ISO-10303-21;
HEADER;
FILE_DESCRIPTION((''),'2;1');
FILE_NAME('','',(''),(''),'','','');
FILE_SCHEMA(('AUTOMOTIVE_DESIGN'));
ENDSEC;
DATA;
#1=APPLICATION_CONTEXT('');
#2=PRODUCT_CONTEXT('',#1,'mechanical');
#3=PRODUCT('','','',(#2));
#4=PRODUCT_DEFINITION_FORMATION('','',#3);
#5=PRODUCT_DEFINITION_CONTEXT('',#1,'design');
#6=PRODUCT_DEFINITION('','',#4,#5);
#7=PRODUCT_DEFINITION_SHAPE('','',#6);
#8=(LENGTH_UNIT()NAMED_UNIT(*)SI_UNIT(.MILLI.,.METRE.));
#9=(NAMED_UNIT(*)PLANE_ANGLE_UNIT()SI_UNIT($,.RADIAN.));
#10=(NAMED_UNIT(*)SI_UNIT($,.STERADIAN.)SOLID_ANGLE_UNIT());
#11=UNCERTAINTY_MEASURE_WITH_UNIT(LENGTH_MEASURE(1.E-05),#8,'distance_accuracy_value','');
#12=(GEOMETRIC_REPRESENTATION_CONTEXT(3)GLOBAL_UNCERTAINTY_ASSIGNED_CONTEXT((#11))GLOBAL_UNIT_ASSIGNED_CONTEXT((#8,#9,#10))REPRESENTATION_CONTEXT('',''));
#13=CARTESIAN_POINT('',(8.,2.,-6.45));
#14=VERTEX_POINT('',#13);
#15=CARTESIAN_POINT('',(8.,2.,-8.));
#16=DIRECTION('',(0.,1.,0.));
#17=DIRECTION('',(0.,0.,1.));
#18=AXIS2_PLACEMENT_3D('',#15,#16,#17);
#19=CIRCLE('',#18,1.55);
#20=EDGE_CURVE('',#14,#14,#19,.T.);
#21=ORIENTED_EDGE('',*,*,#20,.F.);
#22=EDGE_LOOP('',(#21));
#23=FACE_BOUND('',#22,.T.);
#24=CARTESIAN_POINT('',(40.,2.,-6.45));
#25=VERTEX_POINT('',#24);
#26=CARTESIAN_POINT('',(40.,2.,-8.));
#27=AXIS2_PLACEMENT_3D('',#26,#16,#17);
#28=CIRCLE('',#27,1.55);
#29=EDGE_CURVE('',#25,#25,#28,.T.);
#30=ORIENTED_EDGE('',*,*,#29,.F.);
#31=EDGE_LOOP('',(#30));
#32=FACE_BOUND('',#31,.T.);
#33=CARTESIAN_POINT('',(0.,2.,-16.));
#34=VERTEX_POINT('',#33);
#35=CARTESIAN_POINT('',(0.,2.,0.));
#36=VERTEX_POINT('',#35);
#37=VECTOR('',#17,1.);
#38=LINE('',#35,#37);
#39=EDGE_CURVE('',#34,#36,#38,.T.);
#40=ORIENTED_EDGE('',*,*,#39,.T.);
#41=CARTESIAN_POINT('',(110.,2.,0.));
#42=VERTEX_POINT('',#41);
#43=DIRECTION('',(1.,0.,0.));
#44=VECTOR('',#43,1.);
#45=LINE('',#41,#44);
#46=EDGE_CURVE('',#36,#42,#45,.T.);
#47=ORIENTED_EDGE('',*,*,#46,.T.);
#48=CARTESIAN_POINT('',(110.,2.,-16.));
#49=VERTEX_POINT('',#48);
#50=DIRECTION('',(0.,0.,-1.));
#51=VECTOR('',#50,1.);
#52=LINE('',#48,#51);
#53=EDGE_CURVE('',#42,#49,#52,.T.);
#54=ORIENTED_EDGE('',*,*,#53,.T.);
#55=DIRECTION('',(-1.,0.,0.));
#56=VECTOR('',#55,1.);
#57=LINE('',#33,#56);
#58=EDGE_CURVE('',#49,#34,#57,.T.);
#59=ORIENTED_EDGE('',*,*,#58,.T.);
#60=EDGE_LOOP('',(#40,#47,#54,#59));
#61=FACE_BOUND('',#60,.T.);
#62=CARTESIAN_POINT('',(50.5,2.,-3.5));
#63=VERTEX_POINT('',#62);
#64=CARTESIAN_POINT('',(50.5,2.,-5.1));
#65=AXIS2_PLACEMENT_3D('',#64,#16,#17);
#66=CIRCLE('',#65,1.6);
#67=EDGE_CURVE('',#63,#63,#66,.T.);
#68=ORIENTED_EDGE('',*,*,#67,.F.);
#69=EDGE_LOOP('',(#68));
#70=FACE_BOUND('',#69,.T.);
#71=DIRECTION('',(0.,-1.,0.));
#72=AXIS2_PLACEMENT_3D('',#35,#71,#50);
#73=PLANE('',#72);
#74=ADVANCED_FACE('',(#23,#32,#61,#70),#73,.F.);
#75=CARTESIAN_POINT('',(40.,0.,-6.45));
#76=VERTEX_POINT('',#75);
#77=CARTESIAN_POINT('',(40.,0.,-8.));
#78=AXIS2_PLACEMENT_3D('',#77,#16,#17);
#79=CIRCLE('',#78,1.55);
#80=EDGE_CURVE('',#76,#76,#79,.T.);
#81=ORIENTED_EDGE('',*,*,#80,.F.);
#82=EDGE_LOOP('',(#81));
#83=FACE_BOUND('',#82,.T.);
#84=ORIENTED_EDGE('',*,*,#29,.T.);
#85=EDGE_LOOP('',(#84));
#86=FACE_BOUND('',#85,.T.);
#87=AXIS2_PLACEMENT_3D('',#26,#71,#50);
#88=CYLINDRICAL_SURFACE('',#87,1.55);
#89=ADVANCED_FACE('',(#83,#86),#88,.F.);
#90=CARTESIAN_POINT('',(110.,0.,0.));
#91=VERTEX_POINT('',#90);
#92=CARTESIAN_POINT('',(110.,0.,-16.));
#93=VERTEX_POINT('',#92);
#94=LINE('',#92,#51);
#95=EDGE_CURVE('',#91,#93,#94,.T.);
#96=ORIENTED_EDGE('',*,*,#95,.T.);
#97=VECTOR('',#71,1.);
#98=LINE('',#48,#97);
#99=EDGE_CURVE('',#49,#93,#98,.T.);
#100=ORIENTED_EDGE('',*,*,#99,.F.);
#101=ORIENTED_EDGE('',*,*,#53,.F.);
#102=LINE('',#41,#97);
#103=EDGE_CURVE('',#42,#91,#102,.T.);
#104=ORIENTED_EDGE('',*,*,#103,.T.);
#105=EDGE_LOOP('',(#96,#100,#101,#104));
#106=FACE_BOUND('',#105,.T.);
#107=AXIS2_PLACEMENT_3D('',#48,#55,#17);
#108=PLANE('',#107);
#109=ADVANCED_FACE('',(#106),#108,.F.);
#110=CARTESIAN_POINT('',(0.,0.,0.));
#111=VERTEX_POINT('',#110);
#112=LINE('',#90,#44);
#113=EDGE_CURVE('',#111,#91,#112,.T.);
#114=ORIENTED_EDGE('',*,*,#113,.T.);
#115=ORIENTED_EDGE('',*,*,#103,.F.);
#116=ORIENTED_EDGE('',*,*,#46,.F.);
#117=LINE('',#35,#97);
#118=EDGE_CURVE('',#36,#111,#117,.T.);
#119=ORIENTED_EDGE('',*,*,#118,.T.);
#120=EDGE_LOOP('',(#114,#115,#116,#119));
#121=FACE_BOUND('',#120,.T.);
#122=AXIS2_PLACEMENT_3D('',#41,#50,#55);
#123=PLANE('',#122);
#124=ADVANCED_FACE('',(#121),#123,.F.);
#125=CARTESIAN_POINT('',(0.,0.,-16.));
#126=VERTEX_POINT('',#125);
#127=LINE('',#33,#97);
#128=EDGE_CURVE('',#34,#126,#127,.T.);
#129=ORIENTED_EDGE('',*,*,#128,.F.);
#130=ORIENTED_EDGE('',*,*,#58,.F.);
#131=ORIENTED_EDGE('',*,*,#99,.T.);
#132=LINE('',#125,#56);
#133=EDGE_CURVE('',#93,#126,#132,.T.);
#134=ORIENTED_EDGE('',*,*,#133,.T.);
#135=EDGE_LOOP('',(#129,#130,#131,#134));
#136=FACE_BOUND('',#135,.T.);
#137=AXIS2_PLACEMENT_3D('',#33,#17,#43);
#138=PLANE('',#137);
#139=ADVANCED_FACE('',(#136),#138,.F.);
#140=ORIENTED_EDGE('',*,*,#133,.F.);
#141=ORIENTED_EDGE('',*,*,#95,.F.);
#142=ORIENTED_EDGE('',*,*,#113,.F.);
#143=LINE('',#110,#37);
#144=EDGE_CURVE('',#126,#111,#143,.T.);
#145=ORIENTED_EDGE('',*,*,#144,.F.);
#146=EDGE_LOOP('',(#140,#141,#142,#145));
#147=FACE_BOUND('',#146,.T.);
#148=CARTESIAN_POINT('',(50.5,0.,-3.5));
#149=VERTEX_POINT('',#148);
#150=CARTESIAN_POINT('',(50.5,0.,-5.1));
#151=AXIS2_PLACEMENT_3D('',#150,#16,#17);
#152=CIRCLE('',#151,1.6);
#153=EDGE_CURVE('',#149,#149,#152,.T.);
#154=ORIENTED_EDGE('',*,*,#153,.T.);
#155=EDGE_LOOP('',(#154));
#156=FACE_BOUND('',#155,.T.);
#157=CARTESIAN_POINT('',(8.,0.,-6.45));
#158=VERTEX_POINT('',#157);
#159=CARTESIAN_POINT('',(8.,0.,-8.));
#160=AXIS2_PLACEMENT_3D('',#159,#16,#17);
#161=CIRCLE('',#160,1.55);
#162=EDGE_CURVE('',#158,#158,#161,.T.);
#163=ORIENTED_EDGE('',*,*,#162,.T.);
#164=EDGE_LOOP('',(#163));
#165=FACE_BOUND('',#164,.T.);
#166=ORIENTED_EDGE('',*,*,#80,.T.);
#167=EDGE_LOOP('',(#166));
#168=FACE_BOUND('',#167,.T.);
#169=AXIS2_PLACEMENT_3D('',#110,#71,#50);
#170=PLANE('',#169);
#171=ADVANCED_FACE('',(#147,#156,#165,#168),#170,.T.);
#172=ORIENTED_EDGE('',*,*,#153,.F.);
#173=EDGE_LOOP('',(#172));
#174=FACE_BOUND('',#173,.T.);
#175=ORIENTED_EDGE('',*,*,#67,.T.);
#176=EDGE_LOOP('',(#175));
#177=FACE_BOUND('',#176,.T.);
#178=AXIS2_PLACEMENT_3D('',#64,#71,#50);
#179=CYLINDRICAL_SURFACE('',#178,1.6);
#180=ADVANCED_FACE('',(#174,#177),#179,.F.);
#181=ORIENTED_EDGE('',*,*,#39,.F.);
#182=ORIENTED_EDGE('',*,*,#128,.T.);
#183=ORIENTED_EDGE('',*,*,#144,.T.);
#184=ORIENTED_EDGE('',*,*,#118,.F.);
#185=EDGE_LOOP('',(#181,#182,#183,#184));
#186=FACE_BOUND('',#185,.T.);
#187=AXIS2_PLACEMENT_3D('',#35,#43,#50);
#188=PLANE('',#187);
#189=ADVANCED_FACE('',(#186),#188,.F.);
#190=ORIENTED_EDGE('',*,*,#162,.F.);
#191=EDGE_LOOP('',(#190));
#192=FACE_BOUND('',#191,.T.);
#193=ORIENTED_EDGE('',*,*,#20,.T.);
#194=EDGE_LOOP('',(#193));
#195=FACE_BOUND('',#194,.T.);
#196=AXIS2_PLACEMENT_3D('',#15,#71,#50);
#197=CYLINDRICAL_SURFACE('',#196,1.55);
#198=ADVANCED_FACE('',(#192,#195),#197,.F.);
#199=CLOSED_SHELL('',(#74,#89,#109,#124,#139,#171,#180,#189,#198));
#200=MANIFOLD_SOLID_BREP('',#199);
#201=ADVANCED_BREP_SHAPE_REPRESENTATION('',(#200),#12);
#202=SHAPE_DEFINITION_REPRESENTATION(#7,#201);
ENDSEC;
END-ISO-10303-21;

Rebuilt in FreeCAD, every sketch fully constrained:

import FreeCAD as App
import Part
import Sketcher

V = App.Vector


def add_polygon(sketch, points):
    """Adds a closed chain of lines whose ends are joined by coincident constraints."""
    first, n = sketch.GeometryCount, len(points)
    for a, b in zip(points, points[1:] + points[:1]):
        sketch.addGeometry(Part.LineSegment(App.Vector(*a, 0), App.Vector(*b, 0)), False)
    for i in range(n):
        sketch.addConstraint(Sketcher.Constraint("Coincident", first + i, 2, first + (i + 1) % n, 1))

doc = App.newDocument("Part")
body = doc.addObject("PartDesign::Body", "Body")

# Sketch on XZ plane
sketch1 = doc.addObject("Sketcher::SketchObject", "Sketch")
body.addObject(sketch1)
sketch1.AttachmentSupport = (doc.XZ_Plane, [""])
sketch1.MapMode = "FlatFace"
add_polygon(sketch1, [(0, -16), (0, 0), (110, 0), (110, -16)])  # lines 0-3
sketch1.addGeometry(Part.Circle(V(50.5, -5.1, 0), V(0, 0, 1), 1.6), False)  # 4
sketch1.addGeometry(Part.Circle(V(8, -8, 0), V(0, 0, 1), 1.6), False)  # 5
sketch1.addGeometry(Part.Circle(V(40, -8, 0), V(0, 0, 1), 1.6), False)  # 6
sketch1.addConstraint(Sketcher.Constraint("Vertical", 0))
sketch1.addConstraint(Sketcher.Constraint("Horizontal", 1))
sketch1.addConstraint(Sketcher.Constraint("Vertical", 2))
sketch1.addConstraint(Sketcher.Constraint("Horizontal", 3))
sketch1.addConstraint(Sketcher.Constraint("Coincident", 0, 2, -1, 1))
sketch1.addConstraint(Sketcher.Constraint("Equal", 5, 6))
sketch1.addConstraint(Sketcher.Constraint("Horizontal", 5, 3, 6, 3))
sketch1.addConstraint(Sketcher.Constraint("Diameter", 4, 3.2))
sketch1.addConstraint(Sketcher.Constraint("Diameter", 5, 3.1))
sketch1.addConstraint(Sketcher.Constraint("DistanceX", 1, 1, 1, 2, 110.0))
sketch1.addConstraint(Sketcher.Constraint("DistanceY", 0, 1, 0, 2, 16.0))
sketch1.addConstraint(Sketcher.Constraint("DistanceX", -1, 1, 5, 3, 8.0))
sketch1.addConstraint(Sketcher.Constraint("DistanceY", 5, 3, -1, 1, 8.0))
sketch1.addConstraint(Sketcher.Constraint("DistanceX", -1, 1, 6, 3, 40.0))
sketch1.addConstraint(Sketcher.Constraint("DistanceX", -1, 1, 4, 3, 50.5))
sketch1.addConstraint(Sketcher.Constraint("DistanceY", 4, 3, -1, 1, 5.1))
pad1 = doc.addObject("PartDesign::Pad", "Pad")
body.addObject(pad1)
pad1.Profile = sketch1
pad1.Length = 2
pad1.Reversed = True

doc.recompute()
